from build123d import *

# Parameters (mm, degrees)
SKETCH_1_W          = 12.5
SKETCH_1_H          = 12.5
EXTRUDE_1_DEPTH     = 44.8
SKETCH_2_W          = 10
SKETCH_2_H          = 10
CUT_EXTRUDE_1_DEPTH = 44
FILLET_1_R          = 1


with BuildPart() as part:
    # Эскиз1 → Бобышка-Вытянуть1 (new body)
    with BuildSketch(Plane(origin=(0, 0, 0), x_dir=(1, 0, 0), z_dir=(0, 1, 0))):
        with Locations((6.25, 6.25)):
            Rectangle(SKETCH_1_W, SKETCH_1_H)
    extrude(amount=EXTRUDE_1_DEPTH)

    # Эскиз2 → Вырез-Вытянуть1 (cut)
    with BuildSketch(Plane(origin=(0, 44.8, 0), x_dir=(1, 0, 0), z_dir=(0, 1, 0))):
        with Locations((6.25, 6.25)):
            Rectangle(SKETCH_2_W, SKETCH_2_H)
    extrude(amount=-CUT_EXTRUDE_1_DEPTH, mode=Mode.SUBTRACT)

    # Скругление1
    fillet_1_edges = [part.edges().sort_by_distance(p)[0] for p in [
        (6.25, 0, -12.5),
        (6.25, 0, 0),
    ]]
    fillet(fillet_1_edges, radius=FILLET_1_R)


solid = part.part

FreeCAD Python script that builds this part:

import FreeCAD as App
import Part
import Sketcher
Q = App.Units.Quantity


def edges_at(feature, points):
    """Names of the edges that pass closest to the given points."""
    edges = feature.Shape.Edges
    near = lambda p: min(range(len(edges)), key=lambda i: edges[i].distToShape(Part.Vertex(*p))[0])
    return sorted({f"Edge{near(p) + 1}" for p in points})

doc = App.newDocument("Part")
body = doc.addObject("PartDesign::Body", "Body")

# Sketch on XZ plane
sketch1 = body.newObject("Sketcher::SketchObject", "Sketch")
sketch1.AttachmentSupport = (doc.getObject("XZ_Plane"), [""])
sketch1.MapMode = "FlatFace"
sketch1.addGeometry([
    Part.LineSegment(App.Vector(0, -12, 0), App.Vector(0, 0, 0)),
    Part.LineSegment(App.Vector(0, 0, 0), App.Vector(12, 0, 0)),
    Part.LineSegment(App.Vector(12, 0, 0), App.Vector(12, -12, 0)),
    Part.LineSegment(App.Vector(12, -12, 0), App.Vector(0, -12, 0)),
], False)
sketch1.addConstraint([
    Sketcher.Constraint("Coincident", 0, 2, 1, 1),
    Sketcher.Constraint("Coincident", 1, 2, 2, 1),
    Sketcher.Constraint("Coincident", 2, 2, 3, 1),
    Sketcher.Constraint("Coincident", 3, 2, 0, 1),
    Sketcher.Constraint("Vertical", 0),
    Sketcher.Constraint("Horizontal", 1),
    Sketcher.Constraint("Vertical", 2),
    Sketcher.Constraint("Horizontal", 3),
    Sketcher.Constraint("Coincident", 0, 2, -1, 1),
    Sketcher.Constraint("Equal", 3, 0),
    Sketcher.Constraint("DistanceX", 1, 1, 1, 2, Q("12.5 mm")),
])
pad1 = body.newObject("PartDesign::Pad", "Pad")
pad1.Profile = sketch1
pad1.Length = 44.8
pad1.Reversed = True

# Sketch on XZ plane
sketch2 = body.newObject("Sketcher::SketchObject", "Sketch001")
sketch2.AttachmentSupport = (doc.getObject("XZ_Plane"), [""])
sketch2.MapMode = "FlatFace"
sketch2.AttachmentOffset = App.Placement(App.Vector(0, 0, -44.8), App.Rotation())
sketch2.addGeometry([
    Part.LineSegment(App.Vector(1, -11, 0), App.Vector(1, -1, 0)),
    Part.LineSegment(App.Vector(1, -1, 0), App.Vector(11, -1, 0)),
    Part.LineSegment(App.Vector(11, -1, 0), App.Vector(11, -11, 0)),
    Part.LineSegment(App.Vector(11, -11, 0), App.Vector(1, -11, 0)),
], False)
sketch2.addConstraint([
    Sketcher.Constraint("Coincident", 0, 2, 1, 1),
    Sketcher.Constraint("Coincident", 1, 2, 2, 1),
    Sketcher.Constraint("Coincident", 2, 2, 3, 1),
    Sketcher.Constraint("Coincident", 3, 2, 0, 1),
    Sketcher.Constraint("Vertical", 0),
    Sketcher.Constraint("Horizontal", 1),
    Sketcher.Constraint("Vertical", 2),
    Sketcher.Constraint("Horizontal", 3),
    Sketcher.Constraint("Equal", 3, 0),
    Sketcher.Constraint("DistanceX", 1, 1, 1, 2, Q("10 mm")),
    Sketcher.Constraint("DistanceX", -1, 1, 0, 2, Q("1.25 mm")),
    Sketcher.Constraint("DistanceY", 0, 2, -1, 1, Q("1.25 mm")),
])
pocket1 = body.newObject("PartDesign::Pocket", "Pocket")
pocket1.Profile = sketch2
pocket1.Length = 44
pocket1.Reversed = True
doc.recompute()

fillet = body.newObject("PartDesign::Fillet", "Fillet")
fillet.Base = (pocket1, edges_at(pocket1, [(6.25, 0, -12.5), (6.25, 0, 0)]))
fillet.Radius = 1

doc.recompute()
